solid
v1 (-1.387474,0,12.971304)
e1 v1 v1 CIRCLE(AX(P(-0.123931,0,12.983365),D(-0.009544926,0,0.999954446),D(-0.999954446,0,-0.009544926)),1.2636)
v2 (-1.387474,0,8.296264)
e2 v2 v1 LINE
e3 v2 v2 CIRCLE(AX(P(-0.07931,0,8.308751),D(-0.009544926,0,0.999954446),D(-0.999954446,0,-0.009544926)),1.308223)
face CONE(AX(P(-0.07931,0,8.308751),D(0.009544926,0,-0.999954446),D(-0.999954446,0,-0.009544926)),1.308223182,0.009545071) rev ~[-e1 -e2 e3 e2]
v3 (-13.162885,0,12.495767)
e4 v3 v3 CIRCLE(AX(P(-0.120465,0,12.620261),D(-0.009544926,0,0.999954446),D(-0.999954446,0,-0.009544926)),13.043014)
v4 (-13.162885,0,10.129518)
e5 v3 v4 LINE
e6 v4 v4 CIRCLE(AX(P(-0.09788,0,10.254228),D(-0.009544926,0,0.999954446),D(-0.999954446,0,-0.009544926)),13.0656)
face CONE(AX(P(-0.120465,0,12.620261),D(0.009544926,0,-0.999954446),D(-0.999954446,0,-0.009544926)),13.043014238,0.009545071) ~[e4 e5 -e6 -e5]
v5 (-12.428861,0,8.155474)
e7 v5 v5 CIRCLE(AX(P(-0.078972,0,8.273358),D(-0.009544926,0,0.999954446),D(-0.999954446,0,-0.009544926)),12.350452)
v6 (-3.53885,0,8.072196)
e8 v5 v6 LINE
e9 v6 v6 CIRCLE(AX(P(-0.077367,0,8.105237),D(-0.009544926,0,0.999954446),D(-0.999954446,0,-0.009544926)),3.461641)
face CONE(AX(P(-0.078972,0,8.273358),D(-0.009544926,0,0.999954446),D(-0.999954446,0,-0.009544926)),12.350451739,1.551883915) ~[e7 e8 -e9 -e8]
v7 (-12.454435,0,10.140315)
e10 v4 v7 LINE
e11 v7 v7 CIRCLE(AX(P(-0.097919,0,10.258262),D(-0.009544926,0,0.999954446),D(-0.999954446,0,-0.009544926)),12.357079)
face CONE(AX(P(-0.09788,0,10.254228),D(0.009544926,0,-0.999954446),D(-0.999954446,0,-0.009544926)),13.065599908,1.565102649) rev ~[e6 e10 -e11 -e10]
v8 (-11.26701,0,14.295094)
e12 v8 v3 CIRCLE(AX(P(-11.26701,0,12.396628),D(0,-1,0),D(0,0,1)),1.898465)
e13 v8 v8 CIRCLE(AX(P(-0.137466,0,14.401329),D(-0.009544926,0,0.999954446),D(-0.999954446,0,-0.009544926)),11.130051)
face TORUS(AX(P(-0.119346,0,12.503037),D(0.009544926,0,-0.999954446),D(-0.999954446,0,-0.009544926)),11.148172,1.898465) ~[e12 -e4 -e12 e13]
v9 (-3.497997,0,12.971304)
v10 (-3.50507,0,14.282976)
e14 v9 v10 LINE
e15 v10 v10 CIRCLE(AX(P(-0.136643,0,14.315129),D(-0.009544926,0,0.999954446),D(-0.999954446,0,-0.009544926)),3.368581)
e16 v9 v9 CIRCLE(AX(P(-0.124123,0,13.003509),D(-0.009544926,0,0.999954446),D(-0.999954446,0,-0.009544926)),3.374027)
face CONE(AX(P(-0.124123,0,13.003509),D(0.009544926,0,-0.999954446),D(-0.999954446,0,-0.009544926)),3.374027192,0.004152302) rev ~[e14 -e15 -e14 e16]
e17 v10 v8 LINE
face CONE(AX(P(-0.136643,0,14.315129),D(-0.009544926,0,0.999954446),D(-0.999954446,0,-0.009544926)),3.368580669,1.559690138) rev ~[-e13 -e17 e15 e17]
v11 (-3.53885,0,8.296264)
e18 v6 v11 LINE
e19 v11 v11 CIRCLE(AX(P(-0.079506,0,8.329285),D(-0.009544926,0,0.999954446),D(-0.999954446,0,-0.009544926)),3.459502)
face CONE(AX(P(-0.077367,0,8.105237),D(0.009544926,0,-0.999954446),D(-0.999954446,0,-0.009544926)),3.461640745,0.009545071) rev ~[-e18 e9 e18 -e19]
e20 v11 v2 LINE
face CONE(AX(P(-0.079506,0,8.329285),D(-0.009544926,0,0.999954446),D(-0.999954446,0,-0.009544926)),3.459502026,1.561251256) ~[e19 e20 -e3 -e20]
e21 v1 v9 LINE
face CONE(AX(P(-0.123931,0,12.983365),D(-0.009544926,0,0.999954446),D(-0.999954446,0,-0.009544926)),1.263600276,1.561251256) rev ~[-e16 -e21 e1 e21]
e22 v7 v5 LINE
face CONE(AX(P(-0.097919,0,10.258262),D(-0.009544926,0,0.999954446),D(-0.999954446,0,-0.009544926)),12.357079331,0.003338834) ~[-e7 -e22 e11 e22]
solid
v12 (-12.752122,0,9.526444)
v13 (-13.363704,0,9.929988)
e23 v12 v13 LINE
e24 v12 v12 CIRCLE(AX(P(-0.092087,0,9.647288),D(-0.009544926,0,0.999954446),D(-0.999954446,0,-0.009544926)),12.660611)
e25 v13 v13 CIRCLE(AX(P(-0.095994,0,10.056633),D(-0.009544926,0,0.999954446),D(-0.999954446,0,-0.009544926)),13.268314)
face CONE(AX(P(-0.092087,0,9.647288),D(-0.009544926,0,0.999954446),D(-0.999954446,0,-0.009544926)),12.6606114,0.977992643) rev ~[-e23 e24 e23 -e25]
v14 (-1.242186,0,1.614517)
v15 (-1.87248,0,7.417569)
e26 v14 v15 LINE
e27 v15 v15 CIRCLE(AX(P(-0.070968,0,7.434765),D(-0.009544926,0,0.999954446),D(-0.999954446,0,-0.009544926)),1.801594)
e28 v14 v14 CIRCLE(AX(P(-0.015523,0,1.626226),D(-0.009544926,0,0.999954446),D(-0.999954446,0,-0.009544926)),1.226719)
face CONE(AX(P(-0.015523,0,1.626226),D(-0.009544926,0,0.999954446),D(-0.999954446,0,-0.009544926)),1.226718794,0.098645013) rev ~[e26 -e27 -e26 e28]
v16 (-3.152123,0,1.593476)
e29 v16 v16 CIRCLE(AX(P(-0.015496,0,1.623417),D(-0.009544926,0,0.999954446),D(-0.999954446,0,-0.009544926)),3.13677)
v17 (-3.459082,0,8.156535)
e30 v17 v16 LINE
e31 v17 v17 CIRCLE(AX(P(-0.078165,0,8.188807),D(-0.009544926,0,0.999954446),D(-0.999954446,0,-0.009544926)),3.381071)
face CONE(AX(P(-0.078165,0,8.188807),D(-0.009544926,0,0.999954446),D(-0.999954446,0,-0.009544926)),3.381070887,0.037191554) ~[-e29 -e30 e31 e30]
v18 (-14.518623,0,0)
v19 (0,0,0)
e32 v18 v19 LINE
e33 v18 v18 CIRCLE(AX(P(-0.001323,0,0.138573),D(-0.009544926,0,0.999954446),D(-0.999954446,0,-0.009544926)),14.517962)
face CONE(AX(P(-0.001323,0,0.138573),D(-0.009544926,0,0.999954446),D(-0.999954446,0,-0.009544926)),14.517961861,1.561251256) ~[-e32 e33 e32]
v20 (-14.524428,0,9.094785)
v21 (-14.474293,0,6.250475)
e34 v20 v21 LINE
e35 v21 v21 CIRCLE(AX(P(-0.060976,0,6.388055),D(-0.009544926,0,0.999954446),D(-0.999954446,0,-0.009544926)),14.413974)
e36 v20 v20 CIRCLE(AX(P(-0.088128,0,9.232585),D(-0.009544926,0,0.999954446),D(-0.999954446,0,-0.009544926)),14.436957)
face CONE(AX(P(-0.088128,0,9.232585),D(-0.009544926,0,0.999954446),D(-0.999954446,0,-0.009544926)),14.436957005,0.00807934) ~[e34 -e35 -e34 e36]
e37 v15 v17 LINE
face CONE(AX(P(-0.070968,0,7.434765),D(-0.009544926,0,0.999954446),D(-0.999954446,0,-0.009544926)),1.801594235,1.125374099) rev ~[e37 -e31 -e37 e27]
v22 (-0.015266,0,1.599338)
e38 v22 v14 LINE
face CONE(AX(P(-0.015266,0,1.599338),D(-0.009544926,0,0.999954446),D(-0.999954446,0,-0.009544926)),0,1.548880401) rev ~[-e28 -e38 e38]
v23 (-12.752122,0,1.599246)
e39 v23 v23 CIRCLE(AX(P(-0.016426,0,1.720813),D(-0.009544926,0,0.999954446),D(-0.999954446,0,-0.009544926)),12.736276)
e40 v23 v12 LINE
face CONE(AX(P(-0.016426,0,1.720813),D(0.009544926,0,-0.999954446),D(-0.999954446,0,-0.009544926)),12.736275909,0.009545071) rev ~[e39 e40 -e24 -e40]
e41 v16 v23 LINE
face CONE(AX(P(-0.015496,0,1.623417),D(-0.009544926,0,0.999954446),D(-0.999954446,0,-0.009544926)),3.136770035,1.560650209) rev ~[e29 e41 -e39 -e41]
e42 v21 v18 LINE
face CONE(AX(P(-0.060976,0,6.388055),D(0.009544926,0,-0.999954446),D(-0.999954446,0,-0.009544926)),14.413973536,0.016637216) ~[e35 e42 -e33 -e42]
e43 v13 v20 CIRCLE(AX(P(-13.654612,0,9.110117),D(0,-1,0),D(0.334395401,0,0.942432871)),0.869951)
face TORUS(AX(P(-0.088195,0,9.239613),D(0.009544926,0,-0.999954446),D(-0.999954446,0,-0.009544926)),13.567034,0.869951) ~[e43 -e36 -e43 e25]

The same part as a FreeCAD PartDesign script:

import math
import FreeCAD as App
import Part
import Sketcher
from FreeCAD import Vector
Q = App.Units.Quantity

doc = App.newDocument("Part")
params = doc.addObject("Spreadsheet::Sheet", "Params")
for row, (alias, value) in enumerate([
    ("sketch1_length", "9.6 mm"),
    ("revolution_angle", "360 deg"),
    ("revolution2_angle", "360 deg"),
], start=1):
    params.set(f"A{row}", alias)
    params.set(f"B{row}", "=" + value)
    params.setAlias(f"B{row}", alias)

body = doc.addObject("PartDesign::Body", "Body")

sketch1 = doc.addObject("Sketcher::SketchObject", "Sketch")
body.addObject(sketch1)
sketch1.AttachmentSupport = (doc.XZ_Plane, [""])
sketch1.MapMode = "FlatFace"
sketch1.addGeometry([
    Part.ArcOfCircle(Part.Circle(Vector(-13.654612, 9.110117, 0), Vector(0, 0, 1), 0.869951), math.radians(70.464223), math.radians(181.009804)),
    Part.LineSegment(Vector(-14.524428, 9.094785, 0), Vector(-14.474293, 6.250475, 0)),
    Part.LineSegment(Vector(-14.474293, 6.250475, 0), Vector(-14.518623, 0, 0)),
    Part.LineSegment(Vector(-14.518623, 0, 0), Vector(0, 0, 0)),
    Part.LineSegment(Vector(0, 0, 0), Vector(-0.015266, 1.599338, 0)),
    Part.LineSegment(Vector(-0.015266, 1.599338, 0), Vector(-1.242186, 1.614517, 0)),
    Part.LineSegment(Vector(-1.242186, 1.614517, 0), Vector(-1.87248, 7.417569, 0)),
    Part.LineSegment(Vector(-1.87248, 7.417569, 0), Vector(-3.459082, 8.156535, 0)),
    Part.LineSegment(Vector(-3.459082, 8.156535, 0), Vector(-3.152123, 1.593476, 0)),
    Part.LineSegment(Vector(-3.152123, 1.593476, 0), Vector(-12.752122, 1.599246, 0)),
    Part.LineSegment(Vector(-12.752122, 1.599246, 0), Vector(-12.752122, 9.526444, 0)),
    Part.LineSegment(Vector(-12.752122, 9.526444, 0), Vector(-13.363704, 9.929988, 0)),
], False)
sketch1.addGeometry(Part.LineSegment(Vector(0, 0, 0), Vector(-0.095994, 10.056633, 0)), True)
sketch1.addConstraint([
    Sketcher.Constraint("Tangent", 0, 2, 1, 1),
    Sketcher.Constraint("Coincident", 1, 2, 2, 1),
    Sketcher.Constraint("Coincident", 2, 2, 3, 1),
    Sketcher.Constraint("Coincident", 3, 2, 4, 1),
    Sketcher.Constraint("Coincident", 4, 2, 5, 1),
    Sketcher.Constraint("Coincident", 5, 2, 6, 1),
    Sketcher.Constraint("Coincident", 6, 2, 7, 1),
    Sketcher.Constraint("Coincident", 7, 2, 8, 1),
    Sketcher.Constraint("Coincident", 8, 2, 9, 1),
    Sketcher.Constraint("Coincident", 9, 2, 10, 1),
    Sketcher.Constraint("Coincident", 10, 2, 11, 1),
    Sketcher.Constraint("Coincident", 11, 2, 0, 1),
    Sketcher.Constraint("Horizontal", 3),
    Sketcher.Constraint("Vertical", 10),
    Sketcher.Constraint("Coincident", 3, 2, -1, 1),
    Sketcher.Constraint("Coincident", 12, 1, -1, 1),
    Sketcher.Constraint("Parallel", 4, 12),
    Sketcher.Constraint("Distance", 9, Q("9.6 mm")),
    Sketcher.Constraint("Radius", 0, Q("0.869951 mm")),
    Sketcher.Constraint("DistanceY", 5, 2, 0, 3, Q("7.4956 mm")),
    Sketcher.Constraint("DistanceX", 2, 2, 9, 2, Q("1.766502 mm")),
    Sketcher.Constraint("Distance", 1, Q("2.844752 mm")),
    Sketcher.Constraint("Distance", 4, Q("1.599411 mm")),
    Sketcher.Constraint("Distance", 6, Q("5.837181 mm")),
    Sketcher.Constraint("Distance", 7, Q("1.750251 mm")),
    Sketcher.Constraint("Distance", 11, Q("0.732721 mm")),
    Sketcher.Constraint("Distance", 12, Q("10.057091 mm")),
    Sketcher.Constraint("DistanceX", 3, 1, 3, 2, Q("14.518623 mm")),
    Sketcher.Constraint("DistanceY", 10, 1, 10, 2, Q("7.927197 mm")),
    Sketcher.Constraint("DistanceX", 0, 3, -1, 1, Q("13.654612 mm")),
    Sketcher.Constraint("DistanceX", 6, 2, -1, 1, Q("1.87248 mm")),
    Sketcher.Constraint("DistanceY", -1, 1, 6, 2, Q("7.417569 mm")),
    Sketcher.Constraint("DistanceX", 7, 2, -1, 1, Q("3.459082 mm")),
    Sketcher.Constraint("DistanceY", 0, 2, 0, 3, Q("0.015332 mm")),
    Sketcher.Constraint("DistanceY", 4, 2, 0, 3, Q("7.510779 mm")),
    Sketcher.Constraint("DistanceX", 0, 2, 4, 2, Q("14.509161 mm")),
    Sketcher.Constraint("DistanceY", 8, 2, 5, 2, Q("0.021041 mm")),
    Sketcher.Constraint("DistanceY", 9, 2, 1, 2, Q("4.651229 mm")),
])
sketch1.setExpression("Constraints[17]", "Params.sketch1_length")
revolution = doc.addObject("PartDesign::Revolution", "Revolution")
body.addObject(revolution)
revolution.Profile = sketch1
revolution.ReferenceAxis = (sketch1, ["Axis0"])
revolution.setExpression("Angle", "Params.revolution_angle")
body2 = doc.addObject("PartDesign::Body", "Body001")

sketch2 = doc.addObject("Sketcher::SketchObject", "Sketch001")
body2.addObject(sketch2)
sketch2.AttachmentSupport = (doc.getObject("XZ_Plane001"), [""])
sketch2.MapMode = "FlatFace"
sketch2.addGeometry([
    Part.LineSegment(Vector(-12.428861, 8.155474, 0), Vector(-3.53885, 8.072196, 0)),
    Part.LineSegment(Vector(-3.53885, 8.072196, 0), Vector(-3.53885, 8.296264, 0)),
    Part.LineSegment(Vector(-3.53885, 8.296264, 0), Vector(-1.387474, 8.296264, 0)),
    Part.LineSegment(Vector(-1.387474, 8.296264, 0), Vector(-1.387474, 12.971304, 0)),
    Part.LineSegment(Vector(-1.387474, 12.971304, 0), Vector(-3.497997, 12.971304, 0)),
    Part.LineSegment(Vector(-3.497997, 12.971304, 0), Vector(-3.50507, 14.282976, 0)),
    Part.LineSegment(Vector(-3.50507, 14.282976, 0), Vector(-11.26701, 14.295094, 0)),
    Part.ArcOfCircle(Part.Circle(Vector(-11.26701, 12.396628, 0), Vector(0, 0, 1), 1.898465), math.radians(90), math.radians(177.006627)),
    Part.LineSegment(Vector(-13.162885, 12.495767, 0), Vector(-13.162885, 10.129518, 0)),
    Part.LineSegment(Vector(-13.162885, 10.129518, 0), Vector(-12.454435, 10.140315, 0)),
    Part.LineSegment(Vector(-12.454435, 10.140315, 0), Vector(-12.428861, 8.155474, 0)),
], False)
sketch2.addGeometry(Part.LineSegment(Vector(-0.077367, 8.105237, 0), Vector(-0.137466, 14.401329, 0)), True)
sketch2.addConstraint([
    Sketcher.Constraint("Coincident", 0, 2, 1, 1),
    Sketcher.Constraint("Coincident", 1, 2, 2, 1),
    Sketcher.Constraint("Coincident", 2, 2, 3, 1),
    Sketcher.Constraint("Coincident", 3, 2, 4, 1),
    Sketcher.Constraint("Coincident", 4, 2, 5, 1),
    Sketcher.Constraint("Coincident", 5, 2, 6, 1),
    Sketcher.Constraint("Coincident", 6, 2, 7, 1),
    Sketcher.Constraint("Coincident", 7, 2, 8, 1),
    Sketcher.Constraint("Coincident", 8, 2, 9, 1),
    Sketcher.Constraint("Coincident", 9, 2, 10, 1),
    Sketcher.Constraint("Coincident", 10, 2, 0, 1),
    Sketcher.Constraint("Vertical", 1),
    Sketcher.Constraint("Horizontal", 2),
    Sketcher.Constraint("Vertical", 3),
    Sketcher.Constraint("Horizontal", 4),
    Sketcher.Constraint("Vertical", 8),
    Sketcher.Constraint("Vertical", 7, 3, 6, 2),
    Sketcher.Constraint("Radius", 7, Q("1.898465 mm")),
    Sketcher.Constraint("Distance", 0, Q("8.890401 mm")),
    Sketcher.Constraint("DistanceY", 1, 1, 1, 2, Q("0.224069 mm")),
    Sketcher.Constraint("DistanceY", 3, 1, 3, 2, Q("4.67504 mm")),
    Sketcher.Constraint("DistanceY", 8, 2, 8, 1, Q("2.366249 mm")),
    Sketcher.Constraint("DistanceX", 11, 2, 11, 1, Q("0.060098 mm")),
    Sketcher.Constraint("Distance", 5, Q("1.311691 mm")),
    Sketcher.Constraint("Distance", 6, Q("7.761949 mm")),
    Sketcher.Constraint("Distance", 11, Q("6.296379 mm")),
    Sketcher.Constraint("DistanceX", 2, 1, 2, 2, Q("2.151377 mm")),
    Sketcher.Constraint("DistanceX", 4, 2, 4, 1, Q("2.110523 mm")),
    Sketcher.Constraint("DistanceX", 7, 3, -1, 1, Q("11.26701 mm")),
    Sketcher.Constraint("DistanceY", -1, 1, 7, 3, Q("12.396628 mm")),
    Sketcher.Constraint("DistanceX", 0, 2, -1, 1, Q("3.53885 mm")),
    Sketcher.Constraint("DistanceX", 10, 2, -1, 1, Q("12.428861 mm")),
    Sketcher.Constraint("DistanceY", -1, 1, 11, 2, Q("14.401329 mm")),
    Sketcher.Constraint("DistanceY", 4, 2, 6, 2, Q("1.32379 mm")),
    Sketcher.Constraint("DistanceY", 7, 3, 7, 2, Q("0.099139 mm")),
    Sketcher.Constraint("DistanceX", 8, 2, 9, 2, Q("0.70845 mm")),
    Sketcher.Constraint("DistanceY", 9, 2, 6, 2, Q("4.154779 mm")),
    Sketcher.Constraint("DistanceX", 4, 2, 11, 1, Q("3.420629 mm")),
])
revolution2 = doc.addObject("PartDesign::Revolution", "Revolution001")
body2.addObject(revolution2)
revolution2.Profile = sketch2
revolution2.ReferenceAxis = (sketch2, ["Axis0"])
revolution2.setExpression("Angle", "Params.revolution2_angle")

doc.recompute()
